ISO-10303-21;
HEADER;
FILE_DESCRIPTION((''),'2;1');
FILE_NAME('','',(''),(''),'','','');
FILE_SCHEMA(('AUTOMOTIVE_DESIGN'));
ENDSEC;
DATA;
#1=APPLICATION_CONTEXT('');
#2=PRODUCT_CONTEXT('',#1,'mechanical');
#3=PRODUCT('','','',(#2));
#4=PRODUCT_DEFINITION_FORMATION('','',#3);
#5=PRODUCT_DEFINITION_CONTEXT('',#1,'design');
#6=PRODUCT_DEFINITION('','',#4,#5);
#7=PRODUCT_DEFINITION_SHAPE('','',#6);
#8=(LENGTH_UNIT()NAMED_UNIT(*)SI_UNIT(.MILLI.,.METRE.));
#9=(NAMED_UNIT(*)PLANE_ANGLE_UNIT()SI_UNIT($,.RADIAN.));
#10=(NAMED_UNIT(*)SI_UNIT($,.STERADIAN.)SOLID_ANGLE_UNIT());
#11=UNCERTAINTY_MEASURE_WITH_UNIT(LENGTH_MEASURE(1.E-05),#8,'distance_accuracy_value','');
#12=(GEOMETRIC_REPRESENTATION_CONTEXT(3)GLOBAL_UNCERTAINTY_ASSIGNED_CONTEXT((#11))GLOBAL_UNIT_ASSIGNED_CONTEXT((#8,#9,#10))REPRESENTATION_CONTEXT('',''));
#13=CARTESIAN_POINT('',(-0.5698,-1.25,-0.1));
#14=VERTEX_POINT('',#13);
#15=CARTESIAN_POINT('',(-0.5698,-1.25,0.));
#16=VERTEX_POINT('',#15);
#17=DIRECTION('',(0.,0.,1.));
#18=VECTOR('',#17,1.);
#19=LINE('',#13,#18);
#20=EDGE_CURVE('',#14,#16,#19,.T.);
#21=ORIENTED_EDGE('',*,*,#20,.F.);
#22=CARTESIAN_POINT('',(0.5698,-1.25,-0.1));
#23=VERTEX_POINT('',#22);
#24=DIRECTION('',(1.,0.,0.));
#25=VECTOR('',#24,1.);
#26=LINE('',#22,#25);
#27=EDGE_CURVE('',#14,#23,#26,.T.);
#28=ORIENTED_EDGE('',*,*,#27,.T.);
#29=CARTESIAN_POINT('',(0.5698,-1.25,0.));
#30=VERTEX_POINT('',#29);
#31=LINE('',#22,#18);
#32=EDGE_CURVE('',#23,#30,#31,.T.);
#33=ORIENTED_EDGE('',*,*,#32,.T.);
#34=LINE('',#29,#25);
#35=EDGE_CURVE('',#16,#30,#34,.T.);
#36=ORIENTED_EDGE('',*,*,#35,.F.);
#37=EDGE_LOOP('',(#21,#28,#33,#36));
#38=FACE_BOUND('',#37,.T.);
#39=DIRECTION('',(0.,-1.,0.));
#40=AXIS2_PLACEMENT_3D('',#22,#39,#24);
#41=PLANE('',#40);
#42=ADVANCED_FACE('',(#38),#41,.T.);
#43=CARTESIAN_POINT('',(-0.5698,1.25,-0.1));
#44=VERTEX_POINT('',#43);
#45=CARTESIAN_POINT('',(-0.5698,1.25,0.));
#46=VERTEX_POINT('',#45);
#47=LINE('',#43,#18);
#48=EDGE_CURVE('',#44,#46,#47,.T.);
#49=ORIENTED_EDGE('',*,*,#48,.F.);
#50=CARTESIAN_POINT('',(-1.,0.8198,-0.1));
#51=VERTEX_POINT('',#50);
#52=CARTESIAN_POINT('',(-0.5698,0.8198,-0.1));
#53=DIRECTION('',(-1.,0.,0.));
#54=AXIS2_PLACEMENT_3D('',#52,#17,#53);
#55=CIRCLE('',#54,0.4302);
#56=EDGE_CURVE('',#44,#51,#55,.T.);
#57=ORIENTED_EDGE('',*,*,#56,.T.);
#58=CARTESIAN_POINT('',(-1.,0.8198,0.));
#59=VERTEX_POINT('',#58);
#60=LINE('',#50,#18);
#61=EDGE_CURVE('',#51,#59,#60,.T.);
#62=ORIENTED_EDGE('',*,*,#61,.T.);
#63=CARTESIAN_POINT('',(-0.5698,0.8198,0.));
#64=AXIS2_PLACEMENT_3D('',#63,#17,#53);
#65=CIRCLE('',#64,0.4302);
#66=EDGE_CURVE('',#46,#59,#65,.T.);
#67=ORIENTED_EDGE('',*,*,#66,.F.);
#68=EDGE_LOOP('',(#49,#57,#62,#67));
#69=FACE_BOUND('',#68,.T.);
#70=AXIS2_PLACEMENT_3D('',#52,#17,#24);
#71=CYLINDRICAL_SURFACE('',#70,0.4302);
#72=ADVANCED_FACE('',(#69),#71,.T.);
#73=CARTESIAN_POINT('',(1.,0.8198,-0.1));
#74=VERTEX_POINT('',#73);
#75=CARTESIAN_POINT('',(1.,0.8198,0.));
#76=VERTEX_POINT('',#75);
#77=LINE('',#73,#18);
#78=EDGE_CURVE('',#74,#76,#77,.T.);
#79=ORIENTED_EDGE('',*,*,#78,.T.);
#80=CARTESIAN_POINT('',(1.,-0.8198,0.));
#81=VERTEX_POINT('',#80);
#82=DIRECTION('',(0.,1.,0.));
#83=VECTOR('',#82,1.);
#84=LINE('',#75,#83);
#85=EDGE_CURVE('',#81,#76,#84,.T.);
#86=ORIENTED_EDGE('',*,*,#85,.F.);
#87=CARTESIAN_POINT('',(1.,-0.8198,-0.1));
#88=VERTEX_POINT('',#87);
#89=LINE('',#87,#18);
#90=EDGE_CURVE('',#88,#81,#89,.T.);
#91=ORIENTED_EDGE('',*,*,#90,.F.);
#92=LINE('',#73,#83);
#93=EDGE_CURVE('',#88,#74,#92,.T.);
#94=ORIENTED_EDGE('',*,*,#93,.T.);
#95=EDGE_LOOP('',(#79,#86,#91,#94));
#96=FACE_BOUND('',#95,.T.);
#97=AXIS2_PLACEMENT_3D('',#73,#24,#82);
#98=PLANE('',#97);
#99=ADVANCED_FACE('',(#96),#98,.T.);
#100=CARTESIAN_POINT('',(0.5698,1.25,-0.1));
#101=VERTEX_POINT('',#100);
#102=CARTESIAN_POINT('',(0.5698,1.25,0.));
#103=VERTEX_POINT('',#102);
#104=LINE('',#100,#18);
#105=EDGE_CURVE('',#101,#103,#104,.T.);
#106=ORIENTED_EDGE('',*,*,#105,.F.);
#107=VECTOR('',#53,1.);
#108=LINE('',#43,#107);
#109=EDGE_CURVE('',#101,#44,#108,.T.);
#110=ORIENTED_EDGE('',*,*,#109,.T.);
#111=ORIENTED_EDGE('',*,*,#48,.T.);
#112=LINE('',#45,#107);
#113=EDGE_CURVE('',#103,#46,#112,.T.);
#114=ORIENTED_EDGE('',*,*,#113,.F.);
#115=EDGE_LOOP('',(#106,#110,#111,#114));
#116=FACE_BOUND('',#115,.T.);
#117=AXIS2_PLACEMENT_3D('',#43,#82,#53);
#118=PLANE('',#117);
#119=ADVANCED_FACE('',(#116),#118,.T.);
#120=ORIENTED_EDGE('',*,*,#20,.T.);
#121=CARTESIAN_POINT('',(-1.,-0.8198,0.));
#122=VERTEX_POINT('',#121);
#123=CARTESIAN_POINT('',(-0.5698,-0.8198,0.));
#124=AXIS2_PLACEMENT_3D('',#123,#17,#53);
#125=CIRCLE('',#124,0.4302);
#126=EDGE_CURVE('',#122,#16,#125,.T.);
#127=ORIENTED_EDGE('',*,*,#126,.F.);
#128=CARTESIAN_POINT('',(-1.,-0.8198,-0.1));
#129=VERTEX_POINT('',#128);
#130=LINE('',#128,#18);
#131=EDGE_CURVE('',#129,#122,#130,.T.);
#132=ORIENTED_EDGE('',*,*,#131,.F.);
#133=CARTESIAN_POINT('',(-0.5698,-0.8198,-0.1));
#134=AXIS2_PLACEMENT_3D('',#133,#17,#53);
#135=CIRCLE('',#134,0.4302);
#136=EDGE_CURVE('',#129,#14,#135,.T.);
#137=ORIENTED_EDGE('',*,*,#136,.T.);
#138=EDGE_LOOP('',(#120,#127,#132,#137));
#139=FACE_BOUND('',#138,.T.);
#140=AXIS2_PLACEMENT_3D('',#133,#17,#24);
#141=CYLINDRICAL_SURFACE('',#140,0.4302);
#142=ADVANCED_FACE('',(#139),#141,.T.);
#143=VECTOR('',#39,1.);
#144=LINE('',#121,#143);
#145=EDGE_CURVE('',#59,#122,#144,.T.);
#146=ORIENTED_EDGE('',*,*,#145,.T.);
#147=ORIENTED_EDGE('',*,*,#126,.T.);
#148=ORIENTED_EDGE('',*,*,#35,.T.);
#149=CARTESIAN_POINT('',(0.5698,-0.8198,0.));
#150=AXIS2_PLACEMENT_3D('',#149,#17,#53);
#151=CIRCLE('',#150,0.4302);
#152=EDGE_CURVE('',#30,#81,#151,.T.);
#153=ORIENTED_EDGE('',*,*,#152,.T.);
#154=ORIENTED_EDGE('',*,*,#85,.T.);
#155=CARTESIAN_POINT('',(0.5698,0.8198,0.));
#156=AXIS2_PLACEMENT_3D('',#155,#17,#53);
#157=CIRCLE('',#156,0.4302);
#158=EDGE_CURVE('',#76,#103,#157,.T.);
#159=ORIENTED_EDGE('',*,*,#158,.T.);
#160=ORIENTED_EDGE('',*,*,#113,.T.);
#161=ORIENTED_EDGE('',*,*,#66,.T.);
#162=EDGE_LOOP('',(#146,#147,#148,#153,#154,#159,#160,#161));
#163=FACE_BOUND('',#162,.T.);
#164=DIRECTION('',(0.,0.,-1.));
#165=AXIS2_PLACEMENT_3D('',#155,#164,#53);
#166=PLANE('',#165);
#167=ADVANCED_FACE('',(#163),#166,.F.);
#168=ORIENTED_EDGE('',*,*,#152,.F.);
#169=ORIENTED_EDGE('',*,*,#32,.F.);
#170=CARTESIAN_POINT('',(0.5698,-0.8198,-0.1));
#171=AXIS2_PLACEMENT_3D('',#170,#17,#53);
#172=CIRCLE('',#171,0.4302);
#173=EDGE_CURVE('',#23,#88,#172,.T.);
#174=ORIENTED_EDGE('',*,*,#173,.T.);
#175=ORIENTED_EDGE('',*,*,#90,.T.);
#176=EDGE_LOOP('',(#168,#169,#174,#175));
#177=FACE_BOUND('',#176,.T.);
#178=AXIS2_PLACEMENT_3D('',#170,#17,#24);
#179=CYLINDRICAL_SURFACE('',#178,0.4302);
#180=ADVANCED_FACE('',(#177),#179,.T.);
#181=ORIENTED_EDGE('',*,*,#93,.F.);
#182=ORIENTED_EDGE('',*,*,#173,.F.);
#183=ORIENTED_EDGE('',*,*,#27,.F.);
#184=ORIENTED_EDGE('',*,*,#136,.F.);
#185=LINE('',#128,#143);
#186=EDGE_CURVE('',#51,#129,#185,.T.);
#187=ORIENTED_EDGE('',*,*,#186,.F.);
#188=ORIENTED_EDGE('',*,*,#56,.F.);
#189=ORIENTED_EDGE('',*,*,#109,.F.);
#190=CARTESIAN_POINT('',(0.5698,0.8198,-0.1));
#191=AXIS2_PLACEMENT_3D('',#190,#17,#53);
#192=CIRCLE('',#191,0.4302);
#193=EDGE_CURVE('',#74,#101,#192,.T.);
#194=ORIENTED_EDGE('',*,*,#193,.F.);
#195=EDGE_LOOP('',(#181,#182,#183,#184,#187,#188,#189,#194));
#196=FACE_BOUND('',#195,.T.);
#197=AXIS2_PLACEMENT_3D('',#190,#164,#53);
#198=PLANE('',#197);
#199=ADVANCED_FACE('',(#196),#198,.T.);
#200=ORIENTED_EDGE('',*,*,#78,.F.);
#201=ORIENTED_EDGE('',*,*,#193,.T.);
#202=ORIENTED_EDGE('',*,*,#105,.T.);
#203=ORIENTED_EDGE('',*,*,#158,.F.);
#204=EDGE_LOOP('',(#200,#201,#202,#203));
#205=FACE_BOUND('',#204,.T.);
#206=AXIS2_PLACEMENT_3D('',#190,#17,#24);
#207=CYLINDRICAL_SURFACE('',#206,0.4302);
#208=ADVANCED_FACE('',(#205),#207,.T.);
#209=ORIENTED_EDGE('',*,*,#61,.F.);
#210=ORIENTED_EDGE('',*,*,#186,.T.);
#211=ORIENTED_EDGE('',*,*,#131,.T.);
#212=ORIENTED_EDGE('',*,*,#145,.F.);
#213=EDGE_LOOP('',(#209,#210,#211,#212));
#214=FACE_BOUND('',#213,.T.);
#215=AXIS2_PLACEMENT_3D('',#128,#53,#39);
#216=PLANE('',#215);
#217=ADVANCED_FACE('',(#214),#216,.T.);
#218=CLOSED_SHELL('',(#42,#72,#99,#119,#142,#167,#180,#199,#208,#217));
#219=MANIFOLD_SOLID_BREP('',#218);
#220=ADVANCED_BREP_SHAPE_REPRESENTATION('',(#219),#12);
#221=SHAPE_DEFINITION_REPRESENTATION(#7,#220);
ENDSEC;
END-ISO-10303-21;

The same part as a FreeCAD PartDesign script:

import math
import FreeCAD as App
import Part
import Sketcher

V = App.Vector
Q = App.Units.Quantity

doc = App.newDocument("Part")
body = doc.addObject("PartDesign::Body", "Body")

# Sketch on XY plane
sketch1 = body.newObject("Sketcher::SketchObject", "Sketch")
sketch1.AttachmentSupport = (doc.getObject("XY_Plane"), [""])
sketch1.MapMode = "FlatFace"
sketch1.addGeometry([
    Part.LineSegment(V(1, -0.8198, 0), V(1, 0.8198, 0)),  # 0
    Part.ArcOfCircle(Part.Circle(V(0.5698, 0.8198, 0), V(0, 0, 1), 0.4302), math.radians(0), math.radians(90)),  # 1
    Part.LineSegment(V(0.5698, 1.25, 0), V(-0.5698, 1.25, 0)),  # 2
    Part.ArcOfCircle(Part.Circle(V(-0.5698, 0.8198, 0), V(0, 0, 1), 0.4302), math.radians(90), math.radians(180)),  # 3
    Part.LineSegment(V(-1, 0.8198, 0), V(-1, -0.8198, 0)),  # 4
    Part.ArcOfCircle(Part.Circle(V(-0.5698, -0.8198, 0), V(0, 0, 1), 0.4302), math.radians(180), math.radians(270)),  # 5
    Part.LineSegment(V(-0.5698, -1.25, 0), V(0.5698, -1.25, 0)),  # 6
    Part.ArcOfCircle(Part.Circle(V(0.5698, -0.8198, 0), V(0, 0, 1), 0.4302), math.radians(-90), math.radians(0)),  # 7
], False)
sketch1.addConstraint([
    Sketcher.Constraint("Tangent", 0, 2, 1, 1),
    Sketcher.Constraint("Tangent", 1, 2, 2, 1),
    Sketcher.Constraint("Tangent", 2, 2, 3, 1),
    Sketcher.Constraint("Tangent", 3, 2, 4, 1),
    Sketcher.Constraint("Tangent", 4, 2, 5, 1),
    Sketcher.Constraint("Tangent", 5, 2, 6, 1),
    Sketcher.Constraint("Tangent", 6, 2, 7, 1),
    Sketcher.Constraint("Tangent", 7, 2, 0, 1),
    Sketcher.Constraint("Vertical", 0),
    Sketcher.Constraint("Horizontal", 2),
    Sketcher.Constraint("Vertical", 4),
    Sketcher.Constraint("Horizontal", 6),
    Sketcher.Constraint("Equal", 1, 3),
    Sketcher.Constraint("Equal", 3, 5),
    Sketcher.Constraint("Equal", 5, 7),
    Sketcher.Constraint("Symmetric", 1, 3, 5, 3, -1, 1),
    Sketcher.Constraint("DistanceX", -1, 1, 0, 2, Q("1 mm")),
    Sketcher.Constraint("Radius", 1, Q("0.4302 mm")),
    Sketcher.Constraint("DistanceY", -1, 1, 1, 2, Q("1.25 mm")),
])
pad1 = body.newObject("PartDesign::Pad", "Pad")
pad1.Profile = sketch1
pad1.Length = 0.1
pad1.Reversed = True

doc.recompute()
